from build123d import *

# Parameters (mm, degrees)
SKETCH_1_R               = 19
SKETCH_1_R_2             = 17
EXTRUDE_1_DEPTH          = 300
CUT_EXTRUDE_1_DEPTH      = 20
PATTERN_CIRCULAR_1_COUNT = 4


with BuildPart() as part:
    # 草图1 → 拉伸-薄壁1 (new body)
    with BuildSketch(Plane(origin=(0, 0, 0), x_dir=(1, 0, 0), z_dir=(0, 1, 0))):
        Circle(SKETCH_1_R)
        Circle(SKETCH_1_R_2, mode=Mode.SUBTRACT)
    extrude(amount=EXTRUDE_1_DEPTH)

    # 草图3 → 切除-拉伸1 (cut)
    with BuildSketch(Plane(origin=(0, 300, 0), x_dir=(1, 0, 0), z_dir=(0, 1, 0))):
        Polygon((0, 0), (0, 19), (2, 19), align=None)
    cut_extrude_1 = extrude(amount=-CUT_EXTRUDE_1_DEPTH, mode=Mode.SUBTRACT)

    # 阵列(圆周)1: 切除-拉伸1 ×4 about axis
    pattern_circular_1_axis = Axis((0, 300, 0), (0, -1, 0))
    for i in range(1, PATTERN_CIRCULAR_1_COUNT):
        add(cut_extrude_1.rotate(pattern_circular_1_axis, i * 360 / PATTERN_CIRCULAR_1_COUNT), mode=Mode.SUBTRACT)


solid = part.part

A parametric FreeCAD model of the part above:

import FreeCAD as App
import Part
import Sketcher
from FreeCAD import Vector

doc = App.newDocument("Part")
body = doc.addObject("PartDesign::Body", "Body")

sketch1 = doc.addObject("Sketcher::SketchObject", "Sketch")
body.addObject(sketch1)
sketch1.AttachmentSupport = (doc.XZ_Plane, [""])
sketch1.MapMode = "FlatFace"
sketch1.addGeometry([
    Part.Circle(Vector(0, 0, 0), Vector(0, 0, 1), 19),
    Part.Circle(Vector(0, 0, 0), Vector(0, 0, 1), 17),
], False)
sketch1.addConstraint([
    Sketcher.Constraint("Coincident", 0, 3, -1, 1),
    Sketcher.Constraint("Coincident", 1, 3, -1, 1),
    Sketcher.Constraint("Diameter", 0, 38.0),
    Sketcher.Constraint("Diameter", 1, 34.0),
])
pad1 = doc.addObject("PartDesign::Pad", "Pad")
body.addObject(pad1)
pad1.Profile = sketch1
pad1.Length = 300
pad1.Reversed = True

sketch2 = doc.addObject("Sketcher::SketchObject", "Sketch001")
body.addObject(sketch2)
sketch2.AttachmentSupport = (doc.XZ_Plane, [""])
sketch2.MapMode = "FlatFace"
sketch2.AttachmentOffset = App.Placement(Vector(0, 0, -300), App.Rotation())
sketch2.addGeometry([
    Part.LineSegment(Vector(0, -19, 0), Vector(0, 0, 0)),
    Part.LineSegment(Vector(0, 0, 0), Vector(2, -19, 0)),
    Part.LineSegment(Vector(2, -19, 0), Vector(0, -19, 0)),
], False)
sketch2.addConstraint([
    Sketcher.Constraint("Coincident", 0, 2, 1, 1),
    Sketcher.Constraint("Coincident", 1, 2, 2, 1),
    Sketcher.Constraint("Coincident", 2, 2, 0, 1),
    Sketcher.Constraint("Vertical", 0),
    Sketcher.Constraint("Horizontal", 2),
    Sketcher.Constraint("Coincident", 0, 2, -1, 1),
    Sketcher.Constraint("DistanceX", 2, 2, 2, 1, 2.0),
    Sketcher.Constraint("DistanceY", 0, 1, 0, 2, 19.0),
])
pocket1 = doc.addObject("PartDesign::Pocket", "Pocket")
body.addObject(pocket1)
pocket1.Profile = sketch2
pocket1.Length = 20
pocket1.Reversed = True
doc.recompute()

polarpattern = doc.addObject("PartDesign::PolarPattern", "PolarPattern")
body.addObject(polarpattern)
polarpattern.Originals = [pocket1]
polarpattern.Axis = (doc.Y_Axis, [""])
polarpattern.Angle = 360
polarpattern.Occurrences = 4
body.Tip = polarpattern

doc.recompute()
